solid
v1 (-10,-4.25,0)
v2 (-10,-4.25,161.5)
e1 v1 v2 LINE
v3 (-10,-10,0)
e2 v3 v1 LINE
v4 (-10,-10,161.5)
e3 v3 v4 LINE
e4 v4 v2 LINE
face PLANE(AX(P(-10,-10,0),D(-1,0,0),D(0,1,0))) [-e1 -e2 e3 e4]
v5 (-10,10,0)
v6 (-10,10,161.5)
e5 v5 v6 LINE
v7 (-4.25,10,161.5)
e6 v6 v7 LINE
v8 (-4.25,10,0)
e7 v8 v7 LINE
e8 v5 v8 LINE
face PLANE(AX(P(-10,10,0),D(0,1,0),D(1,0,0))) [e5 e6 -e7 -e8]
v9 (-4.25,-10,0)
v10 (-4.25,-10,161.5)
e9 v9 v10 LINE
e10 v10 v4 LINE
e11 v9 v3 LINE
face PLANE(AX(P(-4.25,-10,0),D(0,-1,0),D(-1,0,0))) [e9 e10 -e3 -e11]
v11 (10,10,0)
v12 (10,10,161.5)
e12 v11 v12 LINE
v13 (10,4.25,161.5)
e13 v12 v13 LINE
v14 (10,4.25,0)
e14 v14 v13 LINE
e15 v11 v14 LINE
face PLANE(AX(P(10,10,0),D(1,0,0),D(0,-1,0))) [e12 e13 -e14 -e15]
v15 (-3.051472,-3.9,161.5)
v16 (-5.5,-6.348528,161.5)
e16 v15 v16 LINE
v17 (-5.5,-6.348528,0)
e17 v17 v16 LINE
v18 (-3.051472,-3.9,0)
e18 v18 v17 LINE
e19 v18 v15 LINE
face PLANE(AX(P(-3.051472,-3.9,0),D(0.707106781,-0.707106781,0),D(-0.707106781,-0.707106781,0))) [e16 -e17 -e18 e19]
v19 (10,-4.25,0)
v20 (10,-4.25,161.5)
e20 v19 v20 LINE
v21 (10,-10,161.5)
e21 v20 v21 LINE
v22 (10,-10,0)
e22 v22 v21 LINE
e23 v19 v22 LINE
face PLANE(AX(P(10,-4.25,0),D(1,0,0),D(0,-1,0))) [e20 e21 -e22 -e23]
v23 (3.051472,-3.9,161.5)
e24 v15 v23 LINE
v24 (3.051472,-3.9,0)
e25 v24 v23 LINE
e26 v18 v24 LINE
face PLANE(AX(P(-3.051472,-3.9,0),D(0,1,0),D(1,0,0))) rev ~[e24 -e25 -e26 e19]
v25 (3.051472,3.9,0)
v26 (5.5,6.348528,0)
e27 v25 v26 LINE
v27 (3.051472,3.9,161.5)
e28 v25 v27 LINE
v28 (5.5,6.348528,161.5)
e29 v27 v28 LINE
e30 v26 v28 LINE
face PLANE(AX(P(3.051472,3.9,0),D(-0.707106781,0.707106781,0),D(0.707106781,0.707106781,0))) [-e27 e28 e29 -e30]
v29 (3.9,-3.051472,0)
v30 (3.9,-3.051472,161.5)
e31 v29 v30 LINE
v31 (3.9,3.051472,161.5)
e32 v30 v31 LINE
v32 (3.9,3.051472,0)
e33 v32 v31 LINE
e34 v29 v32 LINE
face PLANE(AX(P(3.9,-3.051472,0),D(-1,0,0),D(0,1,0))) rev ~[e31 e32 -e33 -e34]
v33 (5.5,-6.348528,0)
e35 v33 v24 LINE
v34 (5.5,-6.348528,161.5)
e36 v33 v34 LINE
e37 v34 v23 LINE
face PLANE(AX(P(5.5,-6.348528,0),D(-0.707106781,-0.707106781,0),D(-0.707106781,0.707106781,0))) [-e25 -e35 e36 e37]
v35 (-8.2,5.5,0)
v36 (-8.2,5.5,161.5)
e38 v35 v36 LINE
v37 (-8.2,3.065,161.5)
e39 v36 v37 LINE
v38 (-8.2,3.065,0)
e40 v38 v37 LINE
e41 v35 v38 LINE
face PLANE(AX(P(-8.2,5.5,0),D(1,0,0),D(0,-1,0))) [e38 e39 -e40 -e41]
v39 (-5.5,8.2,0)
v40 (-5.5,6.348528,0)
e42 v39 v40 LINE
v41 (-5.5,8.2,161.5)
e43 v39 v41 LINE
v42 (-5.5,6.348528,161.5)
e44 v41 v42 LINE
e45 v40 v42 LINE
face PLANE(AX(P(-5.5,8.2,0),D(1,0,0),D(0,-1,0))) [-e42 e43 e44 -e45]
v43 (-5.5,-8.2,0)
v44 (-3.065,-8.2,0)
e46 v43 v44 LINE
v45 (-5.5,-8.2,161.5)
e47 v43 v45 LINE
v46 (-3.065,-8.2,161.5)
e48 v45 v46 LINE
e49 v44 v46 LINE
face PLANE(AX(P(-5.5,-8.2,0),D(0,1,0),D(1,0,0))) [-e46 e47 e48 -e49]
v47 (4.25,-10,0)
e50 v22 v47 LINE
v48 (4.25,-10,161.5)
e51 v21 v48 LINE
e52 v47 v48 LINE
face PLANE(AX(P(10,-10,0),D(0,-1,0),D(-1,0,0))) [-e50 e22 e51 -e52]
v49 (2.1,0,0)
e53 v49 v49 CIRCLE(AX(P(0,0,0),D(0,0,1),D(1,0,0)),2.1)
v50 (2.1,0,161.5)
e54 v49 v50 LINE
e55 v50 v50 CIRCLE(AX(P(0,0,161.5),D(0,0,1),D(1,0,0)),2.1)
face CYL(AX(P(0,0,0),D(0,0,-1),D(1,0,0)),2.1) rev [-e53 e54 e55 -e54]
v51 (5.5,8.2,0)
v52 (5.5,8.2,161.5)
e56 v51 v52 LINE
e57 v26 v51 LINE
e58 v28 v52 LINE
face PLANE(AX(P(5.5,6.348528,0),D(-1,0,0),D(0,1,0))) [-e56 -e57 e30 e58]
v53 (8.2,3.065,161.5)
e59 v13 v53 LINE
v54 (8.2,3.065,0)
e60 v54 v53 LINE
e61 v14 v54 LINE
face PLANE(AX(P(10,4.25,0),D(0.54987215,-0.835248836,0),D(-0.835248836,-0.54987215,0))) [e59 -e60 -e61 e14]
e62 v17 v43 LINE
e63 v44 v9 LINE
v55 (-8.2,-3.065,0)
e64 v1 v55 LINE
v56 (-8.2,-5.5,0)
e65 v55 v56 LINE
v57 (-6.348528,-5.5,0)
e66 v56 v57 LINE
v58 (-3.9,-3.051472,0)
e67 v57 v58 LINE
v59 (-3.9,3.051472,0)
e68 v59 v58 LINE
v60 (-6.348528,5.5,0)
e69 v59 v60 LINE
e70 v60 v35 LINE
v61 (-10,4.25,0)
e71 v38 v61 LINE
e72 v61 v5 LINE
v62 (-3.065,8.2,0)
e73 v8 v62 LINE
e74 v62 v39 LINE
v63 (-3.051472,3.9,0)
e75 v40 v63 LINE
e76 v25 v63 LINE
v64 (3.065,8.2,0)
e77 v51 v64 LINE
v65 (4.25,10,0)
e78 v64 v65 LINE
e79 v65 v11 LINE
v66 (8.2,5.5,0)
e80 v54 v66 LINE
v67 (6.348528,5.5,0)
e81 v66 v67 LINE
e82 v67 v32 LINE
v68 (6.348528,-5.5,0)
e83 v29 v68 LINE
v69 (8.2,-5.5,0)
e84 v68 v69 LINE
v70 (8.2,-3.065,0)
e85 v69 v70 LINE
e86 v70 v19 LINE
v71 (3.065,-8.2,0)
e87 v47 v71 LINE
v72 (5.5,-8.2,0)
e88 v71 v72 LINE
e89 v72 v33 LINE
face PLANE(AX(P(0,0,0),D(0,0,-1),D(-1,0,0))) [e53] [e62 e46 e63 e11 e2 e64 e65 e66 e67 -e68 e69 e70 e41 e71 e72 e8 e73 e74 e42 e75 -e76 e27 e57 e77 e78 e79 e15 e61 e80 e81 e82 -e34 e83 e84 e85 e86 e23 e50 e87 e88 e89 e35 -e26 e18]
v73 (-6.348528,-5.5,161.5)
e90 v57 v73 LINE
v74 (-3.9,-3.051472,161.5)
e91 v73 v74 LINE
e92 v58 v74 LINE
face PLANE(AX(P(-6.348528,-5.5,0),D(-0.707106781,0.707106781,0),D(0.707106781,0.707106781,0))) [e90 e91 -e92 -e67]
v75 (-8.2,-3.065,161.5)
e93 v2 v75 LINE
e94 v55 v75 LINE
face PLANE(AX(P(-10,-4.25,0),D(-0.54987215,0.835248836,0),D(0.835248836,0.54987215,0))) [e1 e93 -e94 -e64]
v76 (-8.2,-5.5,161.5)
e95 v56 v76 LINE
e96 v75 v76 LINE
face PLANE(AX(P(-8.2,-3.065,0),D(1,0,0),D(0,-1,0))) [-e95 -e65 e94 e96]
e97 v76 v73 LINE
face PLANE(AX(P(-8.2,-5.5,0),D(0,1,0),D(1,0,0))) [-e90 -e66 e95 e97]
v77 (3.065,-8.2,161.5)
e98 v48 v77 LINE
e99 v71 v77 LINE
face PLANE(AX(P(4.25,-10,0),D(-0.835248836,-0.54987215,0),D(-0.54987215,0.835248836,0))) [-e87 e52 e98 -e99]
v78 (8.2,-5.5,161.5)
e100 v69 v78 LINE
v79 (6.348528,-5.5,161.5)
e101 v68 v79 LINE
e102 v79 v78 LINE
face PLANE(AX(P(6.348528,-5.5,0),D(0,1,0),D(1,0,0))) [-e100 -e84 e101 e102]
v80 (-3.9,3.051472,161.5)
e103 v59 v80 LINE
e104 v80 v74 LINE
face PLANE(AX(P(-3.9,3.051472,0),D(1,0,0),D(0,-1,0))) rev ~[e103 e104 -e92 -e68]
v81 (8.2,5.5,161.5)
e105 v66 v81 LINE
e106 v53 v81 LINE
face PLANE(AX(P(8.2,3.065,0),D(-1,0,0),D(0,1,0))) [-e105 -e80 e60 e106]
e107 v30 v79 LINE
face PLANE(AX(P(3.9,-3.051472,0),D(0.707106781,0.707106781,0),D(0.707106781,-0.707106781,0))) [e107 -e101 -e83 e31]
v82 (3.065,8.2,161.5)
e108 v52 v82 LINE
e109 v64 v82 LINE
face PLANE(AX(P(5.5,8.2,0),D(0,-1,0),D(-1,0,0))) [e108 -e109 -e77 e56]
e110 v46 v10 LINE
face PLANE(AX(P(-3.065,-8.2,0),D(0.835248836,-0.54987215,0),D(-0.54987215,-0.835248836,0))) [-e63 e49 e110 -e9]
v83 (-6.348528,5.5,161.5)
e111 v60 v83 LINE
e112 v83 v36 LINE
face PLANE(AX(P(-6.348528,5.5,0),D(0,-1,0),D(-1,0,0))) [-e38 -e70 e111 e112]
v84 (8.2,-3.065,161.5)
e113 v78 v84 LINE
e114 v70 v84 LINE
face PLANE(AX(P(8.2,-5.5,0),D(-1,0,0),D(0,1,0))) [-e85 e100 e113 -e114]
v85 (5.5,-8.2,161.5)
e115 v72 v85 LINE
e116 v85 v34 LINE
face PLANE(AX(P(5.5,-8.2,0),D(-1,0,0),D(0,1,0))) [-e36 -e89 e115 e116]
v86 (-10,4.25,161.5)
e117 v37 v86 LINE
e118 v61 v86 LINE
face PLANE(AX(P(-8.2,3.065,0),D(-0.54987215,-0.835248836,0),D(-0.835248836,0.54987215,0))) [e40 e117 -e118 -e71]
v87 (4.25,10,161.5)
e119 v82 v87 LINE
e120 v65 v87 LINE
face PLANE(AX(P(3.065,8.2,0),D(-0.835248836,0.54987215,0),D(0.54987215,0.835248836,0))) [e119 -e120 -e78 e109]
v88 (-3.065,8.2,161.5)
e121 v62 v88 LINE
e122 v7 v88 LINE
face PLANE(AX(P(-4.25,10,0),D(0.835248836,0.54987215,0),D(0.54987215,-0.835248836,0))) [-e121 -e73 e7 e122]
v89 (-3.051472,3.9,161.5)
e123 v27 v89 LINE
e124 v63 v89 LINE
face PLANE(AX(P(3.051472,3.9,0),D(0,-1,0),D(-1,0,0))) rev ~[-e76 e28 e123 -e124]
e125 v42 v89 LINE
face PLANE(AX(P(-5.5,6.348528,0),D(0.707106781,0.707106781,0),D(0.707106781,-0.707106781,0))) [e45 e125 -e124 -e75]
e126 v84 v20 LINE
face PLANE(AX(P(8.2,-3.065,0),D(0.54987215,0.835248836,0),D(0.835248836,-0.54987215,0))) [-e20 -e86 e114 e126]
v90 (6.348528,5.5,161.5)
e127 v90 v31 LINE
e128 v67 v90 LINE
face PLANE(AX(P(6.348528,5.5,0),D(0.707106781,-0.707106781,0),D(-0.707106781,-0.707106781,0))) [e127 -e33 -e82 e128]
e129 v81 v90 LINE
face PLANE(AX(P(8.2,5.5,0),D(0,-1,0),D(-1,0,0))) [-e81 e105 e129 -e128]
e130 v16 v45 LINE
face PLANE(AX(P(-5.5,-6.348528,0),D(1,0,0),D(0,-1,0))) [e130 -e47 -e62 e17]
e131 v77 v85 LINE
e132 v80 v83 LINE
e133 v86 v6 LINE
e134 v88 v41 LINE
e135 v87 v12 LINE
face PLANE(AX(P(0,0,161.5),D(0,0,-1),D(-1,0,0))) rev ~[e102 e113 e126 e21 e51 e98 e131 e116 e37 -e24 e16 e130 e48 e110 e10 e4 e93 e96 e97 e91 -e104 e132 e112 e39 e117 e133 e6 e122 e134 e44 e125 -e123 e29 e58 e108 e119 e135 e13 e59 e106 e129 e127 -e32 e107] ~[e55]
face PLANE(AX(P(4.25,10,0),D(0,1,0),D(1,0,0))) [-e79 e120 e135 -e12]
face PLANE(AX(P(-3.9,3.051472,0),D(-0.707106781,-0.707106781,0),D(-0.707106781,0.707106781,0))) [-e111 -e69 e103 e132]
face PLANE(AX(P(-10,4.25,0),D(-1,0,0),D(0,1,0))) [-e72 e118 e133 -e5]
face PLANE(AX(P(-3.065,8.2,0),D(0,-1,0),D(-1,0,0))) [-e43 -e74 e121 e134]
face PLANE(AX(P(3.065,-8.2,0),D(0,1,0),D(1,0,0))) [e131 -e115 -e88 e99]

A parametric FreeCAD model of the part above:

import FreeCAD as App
import Part
import Sketcher

V = App.Vector

doc = App.newDocument("Part")
body = doc.addObject("PartDesign::Body", "Body")

# Sketch on XY plane
sketch1 = doc.addObject("Sketcher::SketchObject", "Sketch")
body.addObject(sketch1)
sketch1.AttachmentSupport = (doc.XY_Plane, [""])
sketch1.MapMode = "FlatFace"
sketch1.addGeometry(Part.LineSegment(V(-4.2, 10, 0), V(-10, 10, 0)), False)
sketch1.addGeometry(Part.LineSegment(V(-10, 10, 0), V(-10, 4.2, 0)), False)
sketch1.addGeometry(Part.LineSegment(V(-10, 4.2, 0), V(-8.2, 3.1, 0)), False)
sketch1.addGeometry(Part.LineSegment(V(-8.2, 3.1, 0), V(-8.2, 5.5, 0)), False)
sketch1.addGeometry(Part.LineSegment(V(-8.2, 5.5, 0), V(-6.3, 5.5, 0)), False)
sketch1.addGeometry(Part.LineSegment(V(-6.3, 5.5, 0), V(-3.9, 3.1, 0)), False)
sketch1.addGeometry(Part.LineSegment(V(-3.9, 3.1, 0), V(-3.9, -3.1, 0)), False)
sketch1.addGeometry(Part.LineSegment(V(-3.9, -3.1, 0), V(-6.3, -5.5, 0)), False)
sketch1.addGeometry(Part.LineSegment(V(-6.3, -5.5, 0), V(-8.2, -5.5, 0)), False)
sketch1.addGeometry(Part.LineSegment(V(-8.2, -5.5, 0), V(-8.2, -3.1, 0)), False)
sketch1.addGeometry(Part.LineSegment(V(-8.2, -3.1, 0), V(-10, -4.2, 0)), False)
sketch1.addGeometry(Part.LineSegment(V(-10, -4.2, 0), V(-10, -10, 0)), False)
sketch1.addGeometry(Part.LineSegment(V(-10, -10, 0), V(-4.2, -10, 0)), False)
sketch1.addGeometry(Part.LineSegment(V(-4.2, -10, 0), V(-3.1, -8.2, 0)), False)
sketch1.addGeometry(Part.LineSegment(V(-3.1, -8.2, 0), V(-5.5, -8.2, 0)), False)
sketch1.addGeometry(Part.LineSegment(V(-5.5, -8.2, 0), V(-5.5, -6.3, 0)), False)
sketch1.addGeometry(Part.LineSegment(V(-5.5, -6.3, 0), V(-3.1, -3.9, 0)), False)
sketch1.addGeometry(Part.LineSegment(V(-3.1, -3.9, 0), V(3.1, -3.9, 0)), False)
sketch1.addGeometry(Part.LineSegment(V(3.1, -3.9, 0), V(5.5, -6.3, 0)), False)
sketch1.addGeometry(Part.LineSegment(V(5.5, -6.3, 0), V(5.5, -8.2, 0)), False)
sketch1.addGeometry(Part.LineSegment(V(5.5, -8.2, 0), V(3.1, -8.2, 0)), False)
sketch1.addGeometry(Part.LineSegment(V(3.1, -8.2, 0), V(4.2, -10, 0)), False)
sketch1.addGeometry(Part.LineSegment(V(4.2, -10, 0), V(10, -10, 0)), False)
sketch1.addGeometry(Part.LineSegment(V(10, -10, 0), V(10, -4.2, 0)), False)
sketch1.addGeometry(Part.LineSegment(V(10, -4.2, 0), V(8.2, -3.1, 0)), False)
sketch1.addGeometry(Part.LineSegment(V(8.2, -3.1, 0), V(8.2, -5.5, 0)), False)
sketch1.addGeometry(Part.LineSegment(V(8.2, -5.5, 0), V(6.3, -5.5, 0)), False)
sketch1.addGeometry(Part.LineSegment(V(6.3, -5.5, 0), V(3.9, -3.1, 0)), False)
sketch1.addGeometry(Part.LineSegment(V(3.9, -3.1, 0), V(3.9, 3.1, 0)), False)
sketch1.addGeometry(Part.LineSegment(V(3.9, 3.1, 0), V(6.3, 5.5, 0)), False)
sketch1.addGeometry(Part.LineSegment(V(6.3, 5.5, 0), V(8.2, 5.5, 0)), False)
sketch1.addGeometry(Part.LineSegment(V(8.2, 5.5, 0), V(8.2, 3.1, 0)), False)
sketch1.addGeometry(Part.LineSegment(V(8.2, 3.1, 0), V(10, 4.2, 0)), False)
sketch1.addGeometry(Part.LineSegment(V(10, 4.2, 0), V(10, 10, 0)), False)
sketch1.addGeometry(Part.LineSegment(V(10, 10, 0), V(4.2, 10, 0)), False)
sketch1.addGeometry(Part.LineSegment(V(4.2, 10, 0), V(3.1, 8.2, 0)), False)
sketch1.addGeometry(Part.LineSegment(V(3.1, 8.2, 0), V(5.5, 8.2, 0)), False)
sketch1.addGeometry(Part.LineSegment(V(5.5, 8.2, 0), V(5.5, 6.3, 0)), False)
sketch1.addGeometry(Part.LineSegment(V(5.5, 6.3, 0), V(3.1, 3.9, 0)), False)
sketch1.addGeometry(Part.LineSegment(V(3.1, 3.9, 0), V(-3.1, 3.9, 0)), False)
sketch1.addGeometry(Part.LineSegment(V(-3.1, 3.9, 0), V(-5.5, 6.3, 0)), False)
sketch1.addGeometry(Part.LineSegment(V(-5.5, 6.3, 0), V(-5.5, 8.2, 0)), False)
sketch1.addGeometry(Part.LineSegment(V(-5.5, 8.2, 0), V(-3.1, 8.2, 0)), False)
sketch1.addGeometry(Part.LineSegment(V(-3.1, 8.2, 0), V(-4.2, 10, 0)), False)
sketch1.addGeometry(Part.Circle(V(0, 0, 0), V(0, 0, 1), 2.1), False)
sketch1.addConstraint(Sketcher.Constraint("Coincident", 0, 2, 1, 1))
sketch1.addConstraint(Sketcher.Constraint("Coincident", 1, 2, 2, 1))
sketch1.addConstraint(Sketcher.Constraint("Coincident", 2, 2, 3, 1))
sketch1.addConstraint(Sketcher.Constraint("Coincident", 3, 2, 4, 1))
sketch1.addConstraint(Sketcher.Constraint("Coincident", 4, 2, 5, 1))
sketch1.addConstraint(Sketcher.Constraint("Coincident", 5, 2, 6, 1))
sketch1.addConstraint(Sketcher.Constraint("Coincident", 6, 2, 7, 1))
sketch1.addConstraint(Sketcher.Constraint("Coincident", 7, 2, 8, 1))
sketch1.addConstraint(Sketcher.Constraint("Coincident", 8, 2, 9, 1))
sketch1.addConstraint(Sketcher.Constraint("Coincident", 9, 2, 10, 1))
sketch1.addConstraint(Sketcher.Constraint("Coincident", 10, 2, 11, 1))
sketch1.addConstraint(Sketcher.Constraint("Coincident", 11, 2, 12, 1))
sketch1.addConstraint(Sketcher.Constraint("Coincident", 12, 2, 13, 1))
sketch1.addConstraint(Sketcher.Constraint("Coincident", 13, 2, 14, 1))
sketch1.addConstraint(Sketcher.Constraint("Coincident", 14, 2, 15, 1))
sketch1.addConstraint(Sketcher.Constraint("Coincident", 15, 2, 16, 1))
sketch1.addConstraint(Sketcher.Constraint("Coincident", 16, 2, 17, 1))
sketch1.addConstraint(Sketcher.Constraint("Coincident", 17, 2, 18, 1))
sketch1.addConstraint(Sketcher.Constraint("Coincident", 18, 2, 19, 1))
sketch1.addConstraint(Sketcher.Constraint("Coincident", 19, 2, 20, 1))
sketch1.addConstraint(Sketcher.Constraint("Coincident", 20, 2, 21, 1))
sketch1.addConstraint(Sketcher.Constraint("Coincident", 21, 2, 22, 1))
sketch1.addConstraint(Sketcher.Constraint("Coincident", 22, 2, 23, 1))
sketch1.addConstraint(Sketcher.Constraint("Coincident", 23, 2, 24, 1))
sketch1.addConstraint(Sketcher.Constraint("Coincident", 24, 2, 25, 1))
sketch1.addConstraint(Sketcher.Constraint("Coincident", 25, 2, 26, 1))
sketch1.addConstraint(Sketcher.Constraint("Coincident", 26, 2, 27, 1))
sketch1.addConstraint(Sketcher.Constraint("Coincident", 27, 2, 28, 1))
sketch1.addConstraint(Sketcher.Constraint("Coincident", 28, 2, 29, 1))
sketch1.addConstraint(Sketcher.Constraint("Coincident", 29, 2, 30, 1))
sketch1.addConstraint(Sketcher.Constraint("Coincident", 30, 2, 31, 1))
sketch1.addConstraint(Sketcher.Constraint("Coincident", 31, 2, 32, 1))
sketch1.addConstraint(Sketcher.Constraint("Coincident", 32, 2, 33, 1))
sketch1.addConstraint(Sketcher.Constraint("Coincident", 33, 2, 34, 1))
sketch1.addConstraint(Sketcher.Constraint("Coincident", 34, 2, 35, 1))
sketch1.addConstraint(Sketcher.Constraint("Coincident", 35, 2, 36, 1))
sketch1.addConstraint(Sketcher.Constraint("Coincident", 36, 2, 37, 1))
sketch1.addConstraint(Sketcher.Constraint("Coincident", 37, 2, 38, 1))
sketch1.addConstraint(Sketcher.Constraint("Coincident", 38, 2, 39, 1))
sketch1.addConstraint(Sketcher.Constraint("Coincident", 39, 2, 40, 1))
sketch1.addConstraint(Sketcher.Constraint("Coincident", 40, 2, 41, 1))
sketch1.addConstraint(Sketcher.Constraint("Coincident", 41, 2, 42, 1))
sketch1.addConstraint(Sketcher.Constraint("Coincident", 42, 2, 43, 1))
sketch1.addConstraint(Sketcher.Constraint("Coincident", 43, 2, 0, 1))
sketch1.addConstraint(Sketcher.Constraint("Horizontal", 0))
sketch1.addConstraint(Sketcher.Constraint("Vertical", 1))
sketch1.addConstraint(Sketcher.Constraint("Vertical", 3))
sketch1.addConstraint(Sketcher.Constraint("Horizontal", 4))
sketch1.addConstraint(Sketcher.Constraint("Vertical", 6))
sketch1.addConstraint(Sketcher.Constraint("Horizontal", 8))
sketch1.addConstraint(Sketcher.Constraint("Vertical", 9))
sketch1.addConstraint(Sketcher.Constraint("Vertical", 11))
sketch1.addConstraint(Sketcher.Constraint("Horizontal", 12))
sketch1.addConstraint(Sketcher.Constraint("Horizontal", 14))
sketch1.addConstraint(Sketcher.Constraint("Vertical", 15))
sketch1.addConstraint(Sketcher.Constraint("Horizontal", 17))
sketch1.addConstraint(Sketcher.Constraint("Vertical", 19))
sketch1.addConstraint(Sketcher.Constraint("Horizontal", 20))
sketch1.addConstraint(Sketcher.Constraint("Horizontal", 22))
sketch1.addConstraint(Sketcher.Constraint("Vertical", 23))
sketch1.addConstraint(Sketcher.Constraint("Vertical", 25))
sketch1.addConstraint(Sketcher.Constraint("Horizontal", 26))
sketch1.addConstraint(Sketcher.Constraint("Vertical", 28))
sketch1.addConstraint(Sketcher.Constraint("Horizontal", 30))
sketch1.addConstraint(Sketcher.Constraint("Vertical", 31))
sketch1.addConstraint(Sketcher.Constraint("Vertical", 33))
sketch1.addConstraint(Sketcher.Constraint("Horizontal", 34))
sketch1.addConstraint(Sketcher.Constraint("Horizontal", 36))
sketch1.addConstraint(Sketcher.Constraint("Vertical", 37))
sketch1.addConstraint(Sketcher.Constraint("Horizontal", 39))
sketch1.addConstraint(Sketcher.Constraint("Vertical", 41))
sketch1.addConstraint(Sketcher.Constraint("Horizontal", 42))
sketch1.addConstraint(Sketcher.Constraint("Coincident", 44, 3, -1, 1))
sketch1.addConstraint(Sketcher.Constraint("Symmetric", 0, 2, 22, 2, -1, 1))
sketch1.addConstraint(Sketcher.Constraint("Symmetric", 2, 2, 24, 2, -1, 1))
sketch1.addConstraint(Sketcher.Constraint("Symmetric", 4, 2, 26, 2, -1, 1))
sketch1.addConstraint(Sketcher.Constraint("Symmetric", 5, 2, 27, 2, -1, 1))
sketch1.addConstraint(Sketcher.Constraint("Symmetric", 7, 2, 29, 2, -1, 1))
sketch1.addConstraint(Sketcher.Constraint("Symmetric", 9, 2, 31, 2, -1, 1))
sketch1.addConstraint(Sketcher.Constraint("Symmetric", 10, 2, 32, 2, -1, 1))
sketch1.addConstraint(Sketcher.Constraint("Symmetric", 12, 2, 34, 2, -1, 1))
sketch1.addConstraint(Sketcher.Constraint("Symmetric", 13, 2, 35, 2, -1, 1))
sketch1.addConstraint(Sketcher.Constraint("Symmetric", 15, 2, 37, 2, -1, 1))
sketch1.addConstraint(Sketcher.Constraint("Symmetric", 16, 2, 38, 2, -1, 1))
sketch1.addConstraint(Sketcher.Constraint("Symmetric", 18, 2, 40, 2, -1, 1))
sketch1.addConstraint(Sketcher.Constraint("Symmetric", 20, 2, 42, 2, -1, 1))
sketch1.addConstraint(Sketcher.Constraint("Symmetric", 15, 2, 18, 2, -2))
sketch1.addConstraint(Sketcher.Constraint("Symmetric", 13, 2, 20, 2, -2))
sketch1.addConstraint(Sketcher.Constraint("Symmetric", 12, 2, 21, 2, -2))
sketch1.addConstraint(Sketcher.Constraint("Symmetric", 10, 2, 23, 2, -2))
sketch1.addConstraint(Sketcher.Constraint("Symmetric", 9, 2, 24, 2, -2))
sketch1.addConstraint(Sketcher.Constraint("Symmetric", 7, 2, 26, 2, -2))
sketch1.addConstraint(Sketcher.Constraint("Perpendicular", 5, 7))
sketch1.addConstraint(Sketcher.Constraint("Perpendicular", 2, 13))
sketch1.addConstraint(Sketcher.Constraint("Parallel", 7, 16))
sketch1.addConstraint(Sketcher.Constraint("Perpendicular", 16, 18))
sketch1.addConstraint(Sketcher.Constraint("Perpendicular", 10, 21))
sketch1.addConstraint(Sketcher.Constraint("Perpendicular", 27, 29))
sketch1.addConstraint(Sketcher.Constraint("Perpendicular", 38, 40))
sketch1.addConstraint(Sketcher.Constraint("Perpendicular", 32, 43))
sketch1.addConstraint(Sketcher.Constraint("Horizontal", 6, 2, 27, 2))
sketch1.addConstraint(Sketcher.Constraint("Equal", 34, 1))
sketch1.addConstraint(Sketcher.Constraint("Equal", 42, 3))
sketch1.addConstraint(Sketcher.Constraint("Equal", 39, 6))
sketch1.addConstraint(Sketcher.Constraint("Equal", 30, 15))
sketch1.addConstraint(Sketcher.Constraint("Equal", 10, 13))
sketch1.addConstraint(Sketcher.Constraint("Equal", 7, 16))
sketch1.addConstraint(Sketcher.Constraint("Diameter", 44, 4.2))
sketch1.addConstraint(Sketcher.Constraint("DistanceX", 0, 2, -1, 1, 10.0))
sketch1.addConstraint(Sketcher.Constraint("DistanceX", 0, 2, 0, 1, 5.75))
sketch1.addConstraint(Sketcher.Constraint("DistanceX", 2, 2, -1, 1, 8.2))
sketch1.addConstraint(Sketcher.Constraint("DistanceY", -1, 1, 3, 2, 5.5))
sketch1.addConstraint(Sketcher.Constraint("DistanceX", 5, 2, -1, 1, 3.9))
sketch1.addConstraint(Sketcher.Constraint("DistanceX", 14, 2, 14, 1, 2.435))
sketch1.addConstraint(Sketcher.Constraint("DistanceX", 4, 1, 4, 2, 1.851472))
pad1 = doc.addObject("PartDesign::Pad", "Pad")
body.addObject(pad1)
pad1.Profile = sketch1
pad1.Length = 161.5

doc.recompute()
